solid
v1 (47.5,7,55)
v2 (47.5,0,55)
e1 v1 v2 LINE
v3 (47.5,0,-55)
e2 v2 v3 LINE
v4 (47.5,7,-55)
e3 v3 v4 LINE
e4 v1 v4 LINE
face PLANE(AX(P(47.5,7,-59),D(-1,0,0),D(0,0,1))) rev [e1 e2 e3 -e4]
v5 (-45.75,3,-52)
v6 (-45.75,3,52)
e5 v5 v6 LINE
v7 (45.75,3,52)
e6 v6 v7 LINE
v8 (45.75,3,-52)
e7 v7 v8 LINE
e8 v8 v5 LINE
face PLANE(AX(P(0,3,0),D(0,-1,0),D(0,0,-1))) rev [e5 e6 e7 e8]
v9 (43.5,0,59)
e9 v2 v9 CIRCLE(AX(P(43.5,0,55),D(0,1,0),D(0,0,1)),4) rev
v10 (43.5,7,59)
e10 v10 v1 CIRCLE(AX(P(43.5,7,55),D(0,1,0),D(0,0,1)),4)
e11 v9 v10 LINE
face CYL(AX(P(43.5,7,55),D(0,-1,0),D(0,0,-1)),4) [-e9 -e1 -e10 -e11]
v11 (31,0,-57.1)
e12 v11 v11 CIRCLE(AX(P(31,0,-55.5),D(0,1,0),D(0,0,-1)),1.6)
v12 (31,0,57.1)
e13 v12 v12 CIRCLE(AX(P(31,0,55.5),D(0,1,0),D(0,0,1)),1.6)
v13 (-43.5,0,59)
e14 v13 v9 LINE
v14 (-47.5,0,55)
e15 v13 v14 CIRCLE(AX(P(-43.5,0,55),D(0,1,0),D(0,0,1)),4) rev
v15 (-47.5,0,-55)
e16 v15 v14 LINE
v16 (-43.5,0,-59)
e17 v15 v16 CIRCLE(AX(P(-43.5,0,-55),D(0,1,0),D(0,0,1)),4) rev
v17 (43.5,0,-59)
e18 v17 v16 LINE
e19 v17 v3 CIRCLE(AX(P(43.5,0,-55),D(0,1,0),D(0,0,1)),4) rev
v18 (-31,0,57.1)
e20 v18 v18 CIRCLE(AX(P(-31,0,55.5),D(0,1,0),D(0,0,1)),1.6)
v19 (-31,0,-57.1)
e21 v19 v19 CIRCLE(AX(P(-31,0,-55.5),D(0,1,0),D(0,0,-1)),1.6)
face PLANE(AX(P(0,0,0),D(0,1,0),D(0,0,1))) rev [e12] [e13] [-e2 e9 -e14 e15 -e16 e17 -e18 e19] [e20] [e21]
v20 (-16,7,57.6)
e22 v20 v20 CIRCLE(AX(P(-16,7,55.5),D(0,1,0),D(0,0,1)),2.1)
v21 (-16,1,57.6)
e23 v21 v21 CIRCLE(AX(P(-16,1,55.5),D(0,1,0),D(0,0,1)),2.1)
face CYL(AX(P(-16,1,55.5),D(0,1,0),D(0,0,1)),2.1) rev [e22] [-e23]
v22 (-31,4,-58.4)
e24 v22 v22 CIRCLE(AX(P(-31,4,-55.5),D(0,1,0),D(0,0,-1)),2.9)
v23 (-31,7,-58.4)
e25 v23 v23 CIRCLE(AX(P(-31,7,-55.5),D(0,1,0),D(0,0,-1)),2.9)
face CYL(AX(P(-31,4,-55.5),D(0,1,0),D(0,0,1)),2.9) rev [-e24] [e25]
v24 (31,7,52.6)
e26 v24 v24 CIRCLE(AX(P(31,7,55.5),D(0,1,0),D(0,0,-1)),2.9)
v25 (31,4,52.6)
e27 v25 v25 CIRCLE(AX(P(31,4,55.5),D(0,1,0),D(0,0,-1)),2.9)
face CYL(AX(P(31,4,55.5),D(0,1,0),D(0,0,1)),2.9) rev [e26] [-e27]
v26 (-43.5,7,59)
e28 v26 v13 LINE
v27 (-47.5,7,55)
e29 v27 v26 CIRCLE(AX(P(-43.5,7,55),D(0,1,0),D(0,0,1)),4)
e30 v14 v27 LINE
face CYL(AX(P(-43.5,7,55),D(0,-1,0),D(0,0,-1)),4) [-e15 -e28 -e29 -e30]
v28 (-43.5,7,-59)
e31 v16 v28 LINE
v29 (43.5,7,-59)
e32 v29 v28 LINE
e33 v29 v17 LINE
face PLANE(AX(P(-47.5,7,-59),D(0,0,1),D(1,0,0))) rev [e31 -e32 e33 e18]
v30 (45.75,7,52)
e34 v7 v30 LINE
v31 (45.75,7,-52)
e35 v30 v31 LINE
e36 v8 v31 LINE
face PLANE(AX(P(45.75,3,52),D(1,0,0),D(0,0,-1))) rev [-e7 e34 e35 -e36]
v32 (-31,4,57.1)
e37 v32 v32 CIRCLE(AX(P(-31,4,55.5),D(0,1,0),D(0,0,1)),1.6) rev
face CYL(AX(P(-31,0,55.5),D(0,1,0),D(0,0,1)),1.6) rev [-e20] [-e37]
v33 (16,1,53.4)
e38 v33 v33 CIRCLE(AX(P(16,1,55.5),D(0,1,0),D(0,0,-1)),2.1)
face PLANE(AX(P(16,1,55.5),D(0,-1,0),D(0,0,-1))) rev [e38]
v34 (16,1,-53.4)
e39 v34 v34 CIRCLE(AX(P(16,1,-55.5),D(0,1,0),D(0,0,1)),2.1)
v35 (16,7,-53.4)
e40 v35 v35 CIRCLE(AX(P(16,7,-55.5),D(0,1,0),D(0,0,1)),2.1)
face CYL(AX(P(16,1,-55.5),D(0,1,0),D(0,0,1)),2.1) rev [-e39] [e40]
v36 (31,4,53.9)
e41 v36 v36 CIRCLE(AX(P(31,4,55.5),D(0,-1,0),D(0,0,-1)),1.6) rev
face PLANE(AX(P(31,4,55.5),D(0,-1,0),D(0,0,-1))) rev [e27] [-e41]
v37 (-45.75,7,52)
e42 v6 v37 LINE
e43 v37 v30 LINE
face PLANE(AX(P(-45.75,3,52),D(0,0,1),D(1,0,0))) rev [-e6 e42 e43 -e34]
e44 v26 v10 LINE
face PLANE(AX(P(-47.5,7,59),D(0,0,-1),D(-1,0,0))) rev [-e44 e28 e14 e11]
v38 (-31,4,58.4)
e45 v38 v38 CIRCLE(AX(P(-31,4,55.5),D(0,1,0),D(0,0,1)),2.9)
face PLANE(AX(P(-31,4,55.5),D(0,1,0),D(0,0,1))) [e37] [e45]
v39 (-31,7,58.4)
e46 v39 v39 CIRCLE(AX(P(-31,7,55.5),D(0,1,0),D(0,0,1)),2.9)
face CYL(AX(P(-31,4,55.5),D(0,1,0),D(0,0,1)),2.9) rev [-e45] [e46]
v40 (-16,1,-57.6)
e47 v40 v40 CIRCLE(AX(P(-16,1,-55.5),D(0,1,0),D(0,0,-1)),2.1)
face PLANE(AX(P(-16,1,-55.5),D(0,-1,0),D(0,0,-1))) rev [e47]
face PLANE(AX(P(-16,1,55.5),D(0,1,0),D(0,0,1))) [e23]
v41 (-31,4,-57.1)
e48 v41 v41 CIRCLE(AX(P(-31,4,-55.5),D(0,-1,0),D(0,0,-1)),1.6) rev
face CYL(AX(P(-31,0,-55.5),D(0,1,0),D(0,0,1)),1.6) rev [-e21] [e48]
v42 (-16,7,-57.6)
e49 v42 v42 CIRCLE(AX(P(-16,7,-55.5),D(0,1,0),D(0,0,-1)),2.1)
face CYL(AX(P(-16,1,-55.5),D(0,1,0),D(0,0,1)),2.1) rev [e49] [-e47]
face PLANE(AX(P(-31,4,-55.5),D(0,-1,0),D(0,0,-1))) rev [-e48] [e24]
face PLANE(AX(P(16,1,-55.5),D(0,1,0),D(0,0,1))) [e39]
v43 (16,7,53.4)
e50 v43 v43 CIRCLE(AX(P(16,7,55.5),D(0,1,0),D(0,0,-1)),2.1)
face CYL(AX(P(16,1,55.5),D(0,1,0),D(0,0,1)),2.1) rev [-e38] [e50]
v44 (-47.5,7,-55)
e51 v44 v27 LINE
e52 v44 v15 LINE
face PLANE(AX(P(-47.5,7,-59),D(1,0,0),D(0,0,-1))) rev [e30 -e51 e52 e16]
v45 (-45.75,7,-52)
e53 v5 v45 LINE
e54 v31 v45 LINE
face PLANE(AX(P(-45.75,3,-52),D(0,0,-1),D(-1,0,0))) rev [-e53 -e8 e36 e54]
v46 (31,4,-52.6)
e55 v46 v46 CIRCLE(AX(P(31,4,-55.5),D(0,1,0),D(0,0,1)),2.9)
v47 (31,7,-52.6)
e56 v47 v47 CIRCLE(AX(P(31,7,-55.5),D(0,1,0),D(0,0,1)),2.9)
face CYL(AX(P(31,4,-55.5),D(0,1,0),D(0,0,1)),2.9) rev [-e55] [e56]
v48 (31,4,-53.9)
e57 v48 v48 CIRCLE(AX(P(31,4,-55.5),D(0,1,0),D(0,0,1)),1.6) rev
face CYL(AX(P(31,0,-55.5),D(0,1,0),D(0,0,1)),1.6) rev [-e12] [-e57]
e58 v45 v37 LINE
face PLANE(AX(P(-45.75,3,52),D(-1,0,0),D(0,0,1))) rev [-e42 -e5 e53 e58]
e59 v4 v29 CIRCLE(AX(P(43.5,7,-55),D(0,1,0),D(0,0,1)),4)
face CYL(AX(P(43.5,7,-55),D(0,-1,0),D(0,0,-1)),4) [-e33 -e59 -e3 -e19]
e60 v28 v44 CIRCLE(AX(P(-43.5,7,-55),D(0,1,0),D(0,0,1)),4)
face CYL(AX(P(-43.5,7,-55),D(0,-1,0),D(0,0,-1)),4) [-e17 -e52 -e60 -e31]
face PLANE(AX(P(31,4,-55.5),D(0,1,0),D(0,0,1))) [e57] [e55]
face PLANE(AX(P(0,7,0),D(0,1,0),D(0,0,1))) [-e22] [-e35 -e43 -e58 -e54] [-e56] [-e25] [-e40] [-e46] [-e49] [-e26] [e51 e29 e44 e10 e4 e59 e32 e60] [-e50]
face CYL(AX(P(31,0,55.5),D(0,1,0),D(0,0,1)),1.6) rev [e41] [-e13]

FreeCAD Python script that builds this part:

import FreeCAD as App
import Part
import Sketcher

V = App.Vector


def edges_at(feature, points):
    """Names of the edges that pass closest to the given points."""
    edges = feature.Shape.Edges
    near = lambda p: min(range(len(edges)), key=lambda i: edges[i].distToShape(Part.Vertex(*p))[0])
    return sorted({f"Edge{near(p) + 1}" for p in points})


def add_polygon(sketch, points):
    """Adds a closed chain of lines whose ends are joined by coincident constraints."""
    first, n = sketch.GeometryCount, len(points)
    for a, b in zip(points, points[1:] + points[:1]):
        sketch.addGeometry(Part.LineSegment(App.Vector(*a, 0), App.Vector(*b, 0)), False)
    for i in range(n):
        sketch.addConstraint(Sketcher.Constraint("Coincident", first + i, 2, first + (i + 1) % n, 1))

doc = App.newDocument("Part")
body = doc.addObject("PartDesign::Body", "Body")

# Sketch on XZ plane
sketch1 = doc.addObject("Sketcher::SketchObject", "Sketch")
body.addObject(sketch1)
sketch1.AttachmentSupport = (doc.XZ_Plane, [""])
sketch1.MapMode = "FlatFace"
add_polygon(sketch1, [(-47.5, -59), (-47.5, 59), (47.5, 59), (47.5, -59)])  # lines 0-3
sketch1.addConstraint([
    Sketcher.Constraint("Vertical", 0),
    Sketcher.Constraint("Horizontal", 1),
    Sketcher.Constraint("Vertical", 2),
    Sketcher.Constraint("Horizontal", 3),
    Sketcher.Constraint("Symmetric", 0, 2, 2, 2, -1, 1),
    Sketcher.Constraint("DistanceX", 1, 1, 1, 2, 95.0),
    Sketcher.Constraint("DistanceY", 0, 1, 0, 2, 118.0),
])
pad1 = doc.addObject("PartDesign::Pad", "Pad")
body.addObject(pad1)
pad1.Profile = sketch1
pad1.Length = 7
pad1.Reversed = True

# Sketch on XZ plane
sketch2 = doc.addObject("Sketcher::SketchObject", "Sketch001")
body.addObject(sketch2)
sketch2.AttachmentSupport = (doc.XZ_Plane, [""])
sketch2.MapMode = "FlatFace"
sketch2.AttachmentOffset = App.Placement(V(0, 0, -7), App.Rotation())
add_polygon(sketch2, [(-45.75, -52), (-45.75, 52), (45.75, 52), (45.75, -52)])  # lines 0-3
sketch2.addConstraint([
    Sketcher.Constraint("Vertical", 0),
    Sketcher.Constraint("Horizontal", 1),
    Sketcher.Constraint("Vertical", 2),
    Sketcher.Constraint("Horizontal", 3),
    Sketcher.Constraint("Symmetric", 0, 2, 2, 2, -1, 1),
    Sketcher.Constraint("DistanceY", 0, 1, 0, 2, 104.0),
    Sketcher.Constraint("DistanceX", 1, 1, 1, 2, 91.5),
])
pocket1 = doc.addObject("PartDesign::Pocket", "Pocket")
body.addObject(pocket1)
pocket1.Profile = sketch2
pocket1.Length = 4
pocket1.Reversed = True

# Sketch on XZ plane
sketch3 = doc.addObject("Sketcher::SketchObject", "Sketch002")
body.addObject(sketch3)
sketch3.AttachmentSupport = (doc.XZ_Plane, [""])
sketch3.MapMode = "FlatFace"
sketch3.AttachmentOffset = App.Placement(V(0, 0, -7), App.Rotation())
sketch3.addGeometry([
    Part.Circle(V(31, 55.5, 0), V(0, 0, 1), 1.6),
    Part.Circle(V(-31, 55.5, 0), V(0, 0, 1), 1.6),
    Part.Circle(V(31, -55.5, 0), V(0, 0, 1), 1.6),
    Part.Circle(V(-31, -55.5, 0), V(0, 0, 1), 1.6),
], False)
sketch3.addConstraint([
    Sketcher.Constraint("Equal", 0, 1),
    Sketcher.Constraint("Equal", 1, 2),
    Sketcher.Constraint("Equal", 2, 3),
    Sketcher.Constraint("Symmetric", 1, 3, 2, 3, -1, 1),
    Sketcher.Constraint("Symmetric", 0, 3, 3, 3, -1, 1),
    Sketcher.Constraint("Symmetric", 0, 3, 1, 3, -2),
    Sketcher.Constraint("Diameter", 0, 3.2),
    Sketcher.Constraint("DistanceX", -1, 1, 0, 3, 31.0),
    Sketcher.Constraint("DistanceY", 2, 3, 0, 3, 111.0),
])
pocket2 = doc.addObject("PartDesign::Pocket", "Pocket001")
body.addObject(pocket2)
pocket2.Profile = sketch3
pocket2.Type = "ThroughAll"
pocket2.Reversed = True
doc.recompute()

fillet = doc.addObject("PartDesign::Fillet", "Fillet")
body.addObject(fillet)
fillet.Base = (pocket2, edges_at(pocket2, [
    (47.5, 3.5, 59),
    (-47.5, 3.5, 59),
    (-47.5, 3.5, -59),
    (47.5, 3.5, -59),
]))
fillet.Radius = 4

# Sketch on XZ plane
sketch4 = doc.addObject("Sketcher::SketchObject", "Sketch003")
body.addObject(sketch4)
sketch4.AttachmentSupport = (doc.XZ_Plane, [""])
sketch4.MapMode = "FlatFace"
sketch4.AttachmentOffset = App.Placement(V(0, 0, -7), App.Rotation())
sketch4.addGeometry([
    Part.Circle(V(-31, 55.5, 0), V(0, 0, 1), 2.9),
    Part.Circle(V(-31, -55.5, 0), V(0, 0, 1), 2.9),
    Part.Circle(V(31, 55.5, 0), V(0, 0, 1), 2.9),
    Part.Circle(V(31, -55.5, 0), V(0, 0, 1), 2.9),
], False)
sketch4.addConstraint([
    Sketcher.Constraint("Equal", 0, 1),
    Sketcher.Constraint("Equal", 1, 2),
    Sketcher.Constraint("Equal", 2, 3),
    Sketcher.Constraint("Symmetric", 1, 3, 2, 3, -1, 1),
    Sketcher.Constraint("Symmetric", 0, 3, 3, 3, -1, 1),
    Sketcher.Constraint("Symmetric", 0, 3, 2, 3, -2),
    Sketcher.Constraint("Diameter", 0, 5.8),
    Sketcher.Constraint("DistanceX", 0, 3, -1, 1, 31.0),
    Sketcher.Constraint("DistanceY", 1, 3, 0, 3, 111.0),
])
pocket3 = doc.addObject("PartDesign::Pocket", "Pocket002")
body.addObject(pocket3)
pocket3.Profile = sketch4
pocket3.Length = 3
pocket3.Reversed = True

# Sketch on XZ plane
sketch5 = doc.addObject("Sketcher::SketchObject", "Sketch004")
body.addObject(sketch5)
sketch5.AttachmentSupport = (doc.XZ_Plane, [""])
sketch5.MapMode = "FlatFace"
sketch5.AttachmentOffset = App.Placement(V(0, 0, -7), App.Rotation())
sketch5.addGeometry([
    Part.Circle(V(-16, 55.5, 0), V(0, 0, 1), 2.1),
    Part.Circle(V(-16, -55.5, 0), V(0, 0, 1), 2.1),
    Part.Circle(V(16, -55.5, 0), V(0, 0, 1), 2.1),
    Part.Circle(V(16, 55.5, 0), V(0, 0, 1), 2.1),
], False)
sketch5.addConstraint([
    Sketcher.Constraint("Equal", 0, 1),
    Sketcher.Constraint("Equal", 1, 2),
    Sketcher.Constraint("Equal", 2, 3),
    Sketcher.Constraint("Symmetric", 0, 3, 2, 3, -1, 1),
    Sketcher.Constraint("Symmetric", 1, 3, 3, 3, -1, 1),
    Sketcher.Constraint("Symmetric", 1, 3, 2, 3, -2),
    Sketcher.Constraint("Diameter", 0, 4.2),
    Sketcher.Constraint("DistanceX", 0, 3, -1, 1, 16.0),
    Sketcher.Constraint("DistanceY", 1, 3, 0, 3, 111.0),
])
pocket4 = doc.addObject("PartDesign::Pocket", "Pocket003")
body.addObject(pocket4)
pocket4.Profile = sketch5
pocket4.Length = 6
pocket4.Reversed = True

doc.recompute()
